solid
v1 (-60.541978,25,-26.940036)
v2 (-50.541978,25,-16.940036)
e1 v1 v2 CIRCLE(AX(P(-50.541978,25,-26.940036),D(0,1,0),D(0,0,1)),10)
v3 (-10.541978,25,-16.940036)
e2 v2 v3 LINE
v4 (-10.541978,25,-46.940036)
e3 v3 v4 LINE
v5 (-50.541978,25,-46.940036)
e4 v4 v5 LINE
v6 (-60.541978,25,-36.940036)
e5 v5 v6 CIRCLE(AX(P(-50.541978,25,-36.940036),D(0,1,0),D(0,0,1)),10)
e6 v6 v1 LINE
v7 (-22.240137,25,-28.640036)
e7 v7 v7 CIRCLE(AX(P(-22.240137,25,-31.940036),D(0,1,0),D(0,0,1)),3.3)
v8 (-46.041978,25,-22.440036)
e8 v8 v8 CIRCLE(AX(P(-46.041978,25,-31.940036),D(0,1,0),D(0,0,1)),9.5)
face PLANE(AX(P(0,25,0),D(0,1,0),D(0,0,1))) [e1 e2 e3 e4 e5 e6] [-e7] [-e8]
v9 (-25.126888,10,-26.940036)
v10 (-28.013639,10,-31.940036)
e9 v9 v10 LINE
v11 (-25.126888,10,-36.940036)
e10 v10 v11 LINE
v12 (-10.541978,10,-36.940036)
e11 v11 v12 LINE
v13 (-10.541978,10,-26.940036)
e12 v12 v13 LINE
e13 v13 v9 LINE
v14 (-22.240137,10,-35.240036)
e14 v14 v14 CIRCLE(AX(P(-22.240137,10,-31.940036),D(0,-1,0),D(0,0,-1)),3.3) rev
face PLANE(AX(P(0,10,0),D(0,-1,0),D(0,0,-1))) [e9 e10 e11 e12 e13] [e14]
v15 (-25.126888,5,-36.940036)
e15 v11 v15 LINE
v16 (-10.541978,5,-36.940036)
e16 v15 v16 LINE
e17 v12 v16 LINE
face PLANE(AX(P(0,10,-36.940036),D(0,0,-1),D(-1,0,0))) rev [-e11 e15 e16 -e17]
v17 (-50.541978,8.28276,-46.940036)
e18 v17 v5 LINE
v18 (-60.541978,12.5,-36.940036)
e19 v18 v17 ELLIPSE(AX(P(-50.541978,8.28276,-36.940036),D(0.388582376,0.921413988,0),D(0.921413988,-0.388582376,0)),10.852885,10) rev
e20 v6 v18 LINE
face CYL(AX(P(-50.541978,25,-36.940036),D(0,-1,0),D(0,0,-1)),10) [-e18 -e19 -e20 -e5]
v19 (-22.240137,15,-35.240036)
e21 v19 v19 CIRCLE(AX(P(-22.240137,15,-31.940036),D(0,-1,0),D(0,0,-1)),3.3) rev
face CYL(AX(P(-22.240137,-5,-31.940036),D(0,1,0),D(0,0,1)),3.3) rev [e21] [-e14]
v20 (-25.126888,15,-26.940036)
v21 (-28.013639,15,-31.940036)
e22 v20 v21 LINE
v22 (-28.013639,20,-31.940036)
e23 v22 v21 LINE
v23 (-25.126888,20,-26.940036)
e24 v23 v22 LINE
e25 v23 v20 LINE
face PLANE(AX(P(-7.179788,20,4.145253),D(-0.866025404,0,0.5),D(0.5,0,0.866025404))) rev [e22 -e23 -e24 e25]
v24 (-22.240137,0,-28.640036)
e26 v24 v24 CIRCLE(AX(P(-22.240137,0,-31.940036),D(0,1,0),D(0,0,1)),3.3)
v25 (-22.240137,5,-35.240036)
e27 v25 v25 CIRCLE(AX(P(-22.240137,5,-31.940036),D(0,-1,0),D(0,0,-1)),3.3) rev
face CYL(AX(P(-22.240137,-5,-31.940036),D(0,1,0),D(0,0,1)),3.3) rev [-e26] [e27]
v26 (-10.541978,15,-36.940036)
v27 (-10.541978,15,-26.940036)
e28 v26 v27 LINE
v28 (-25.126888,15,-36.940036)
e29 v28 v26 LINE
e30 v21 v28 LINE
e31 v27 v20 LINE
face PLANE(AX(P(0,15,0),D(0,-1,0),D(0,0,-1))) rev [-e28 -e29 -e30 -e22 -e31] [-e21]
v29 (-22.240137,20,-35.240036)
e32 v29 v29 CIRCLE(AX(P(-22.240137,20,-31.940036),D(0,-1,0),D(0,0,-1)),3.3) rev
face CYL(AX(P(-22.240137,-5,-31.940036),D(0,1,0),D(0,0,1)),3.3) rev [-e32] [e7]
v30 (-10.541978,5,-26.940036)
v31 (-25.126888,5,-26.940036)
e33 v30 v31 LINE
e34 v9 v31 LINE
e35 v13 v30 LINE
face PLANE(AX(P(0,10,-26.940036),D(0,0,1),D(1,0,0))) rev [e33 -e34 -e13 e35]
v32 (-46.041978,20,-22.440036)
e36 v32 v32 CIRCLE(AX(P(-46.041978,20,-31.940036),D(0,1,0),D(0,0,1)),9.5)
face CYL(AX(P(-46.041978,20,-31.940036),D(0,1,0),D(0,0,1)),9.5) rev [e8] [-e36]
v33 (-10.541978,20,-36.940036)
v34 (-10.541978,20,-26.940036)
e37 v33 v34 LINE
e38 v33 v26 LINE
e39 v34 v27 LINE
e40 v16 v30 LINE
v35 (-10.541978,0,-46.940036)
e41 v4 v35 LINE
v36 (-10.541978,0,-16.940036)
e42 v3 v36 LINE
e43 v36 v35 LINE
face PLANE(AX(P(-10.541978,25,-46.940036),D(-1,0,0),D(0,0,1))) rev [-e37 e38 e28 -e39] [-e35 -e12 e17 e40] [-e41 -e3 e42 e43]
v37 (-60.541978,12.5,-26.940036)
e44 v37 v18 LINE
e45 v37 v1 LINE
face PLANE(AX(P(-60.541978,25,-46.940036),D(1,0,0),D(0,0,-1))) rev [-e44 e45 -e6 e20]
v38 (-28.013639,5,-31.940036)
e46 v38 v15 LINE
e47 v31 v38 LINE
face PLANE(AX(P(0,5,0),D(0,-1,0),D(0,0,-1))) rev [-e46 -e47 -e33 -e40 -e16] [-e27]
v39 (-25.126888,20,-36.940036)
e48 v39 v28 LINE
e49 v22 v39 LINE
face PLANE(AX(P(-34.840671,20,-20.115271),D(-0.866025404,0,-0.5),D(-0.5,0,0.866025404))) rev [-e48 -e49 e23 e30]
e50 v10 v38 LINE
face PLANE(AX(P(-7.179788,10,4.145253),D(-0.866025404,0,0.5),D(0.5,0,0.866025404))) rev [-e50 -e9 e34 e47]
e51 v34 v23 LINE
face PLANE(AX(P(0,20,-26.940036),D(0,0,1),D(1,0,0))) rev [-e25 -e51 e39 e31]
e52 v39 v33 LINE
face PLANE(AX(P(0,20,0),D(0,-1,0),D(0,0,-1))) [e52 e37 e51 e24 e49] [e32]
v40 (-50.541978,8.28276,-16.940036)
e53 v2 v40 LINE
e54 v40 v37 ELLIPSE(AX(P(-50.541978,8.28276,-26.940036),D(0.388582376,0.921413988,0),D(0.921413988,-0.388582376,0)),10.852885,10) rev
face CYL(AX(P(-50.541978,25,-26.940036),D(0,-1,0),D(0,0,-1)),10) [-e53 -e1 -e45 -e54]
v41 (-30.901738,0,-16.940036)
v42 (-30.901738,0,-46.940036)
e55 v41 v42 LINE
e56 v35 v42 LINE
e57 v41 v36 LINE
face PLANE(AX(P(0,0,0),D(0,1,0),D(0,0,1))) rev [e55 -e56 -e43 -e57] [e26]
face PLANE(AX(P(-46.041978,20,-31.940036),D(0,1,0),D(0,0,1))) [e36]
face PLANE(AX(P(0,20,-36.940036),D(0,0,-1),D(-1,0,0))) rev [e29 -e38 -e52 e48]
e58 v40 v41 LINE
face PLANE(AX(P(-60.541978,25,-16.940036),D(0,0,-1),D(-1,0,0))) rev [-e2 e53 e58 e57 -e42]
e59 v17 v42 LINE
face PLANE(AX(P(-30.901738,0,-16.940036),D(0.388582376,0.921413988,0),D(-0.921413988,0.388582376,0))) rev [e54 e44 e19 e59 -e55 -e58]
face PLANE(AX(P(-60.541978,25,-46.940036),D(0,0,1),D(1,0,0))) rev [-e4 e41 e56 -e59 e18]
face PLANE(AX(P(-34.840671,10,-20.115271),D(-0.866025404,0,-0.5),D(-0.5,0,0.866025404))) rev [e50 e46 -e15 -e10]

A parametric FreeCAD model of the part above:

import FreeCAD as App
import Part
import Sketcher
Q = App.Units.Quantity


def edges_at(feature, points):
    """Names of the edges that pass closest to the given points."""
    edges = feature.Shape.Edges
    near = lambda p: min(range(len(edges)), key=lambda i: edges[i].distToShape(Part.Vertex(*p))[0])
    return sorted({f"Edge{near(p) + 1}" for p in points})

doc = App.newDocument("Part")
body = doc.addObject("PartDesign::Body", "Body")

sketch1 = body.newObject("Sketcher::SketchObject", "Sketch")
sketch1.AttachmentSupport = (doc.getObject("XZ_Plane"), [""])
sketch1.MapMode = "FlatFace"
sketch1.addGeometry(Part.LineSegment(App.Vector(-60.541978, -46.940036, 0), App.Vector(-60.541978, -16.940036, 0)), False)
sketch1.addGeometry(Part.LineSegment(App.Vector(-60.541978, -16.940036, 0), App.Vector(-10.541978, -16.940036, 0)), False)
sketch1.addGeometry(Part.LineSegment(App.Vector(-10.541978, -16.940036, 0), App.Vector(-10.541978, -46.940036, 0)), False)
sketch1.addGeometry(Part.LineSegment(App.Vector(-10.541978, -46.940036, 0), App.Vector(-60.541978, -46.940036, 0)), False)
sketch1.addConstraint(Sketcher.Constraint("Coincident", 0, 2, 1, 1))
sketch1.addConstraint(Sketcher.Constraint("Coincident", 1, 2, 2, 1))
sketch1.addConstraint(Sketcher.Constraint("Coincident", 2, 2, 3, 1))
sketch1.addConstraint(Sketcher.Constraint("Coincident", 3, 2, 0, 1))
sketch1.addConstraint(Sketcher.Constraint("Vertical", 0))
sketch1.addConstraint(Sketcher.Constraint("Horizontal", 1))
sketch1.addConstraint(Sketcher.Constraint("Vertical", 2))
sketch1.addConstraint(Sketcher.Constraint("Horizontal", 3))
sketch1.addConstraint(Sketcher.Constraint("DistanceX", 1, 1, 1, 2, Q("50 mm")))
sketch1.addConstraint(Sketcher.Constraint("DistanceY", 0, 1, 0, 2, Q("30 mm")))
sketch1.addConstraint(Sketcher.Constraint("DistanceX", 0, 2, -1, 1, Q("60.541978 mm")))
sketch1.addConstraint(Sketcher.Constraint("DistanceY", 0, 2, -1, 1, Q("16.940036 mm")))
pad1 = body.newObject("PartDesign::Pad", "Pad")
pad1.Profile = sketch1
pad1.Length = 25
pad1.Reversed = True

sketch2 = body.newObject("Sketcher::SketchObject", "Sketch001")
sketch2.AttachmentSupport = (doc.getObject("XZ_Plane"), [""])
sketch2.MapMode = "FlatFace"
sketch2.AttachmentOffset = App.Placement(App.Vector(0, 0, -25), App.Rotation())
sketch2.addGeometry(Part.Circle(App.Vector(-46.041978, -31.940036, 0), App.Vector(0, 0, 1), 9.5), False)
sketch2.addConstraint(Sketcher.Constraint("Diameter", 0, Q("19 mm")))
sketch2.addConstraint(Sketcher.Constraint("DistanceX", 0, 3, -1, 1, Q("46.041978 mm")))
sketch2.addConstraint(Sketcher.Constraint("DistanceY", 0, 3, -1, 1, Q("31.940036 mm")))
pocket1 = body.newObject("PartDesign::Pocket", "Pocket")
pocket1.Profile = sketch2
pocket1.Length = 5
pocket1.Reversed = True

sketch3 = body.newObject("Sketcher::SketchObject", "Sketch002")
sketch3.AttachmentSupport = (doc.getObject("XZ_Plane"), [""])
sketch3.MapMode = "FlatFace"
sketch3.AttachmentOffset = App.Placement(App.Vector(0, 0, -25), App.Rotation())
sketch3.addGeometry(Part.Circle(App.Vector(-22.240137, -31.940036, 0), App.Vector(0, 0, 1), 3.3), False)
sketch3.addConstraint(Sketcher.Constraint("Diameter", 0, Q("6.6 mm")))
sketch3.addConstraint(Sketcher.Constraint("DistanceX", 0, 3, -1, 1, Q("22.240137 mm")))
sketch3.addConstraint(Sketcher.Constraint("DistanceY", 0, 3, -1, 1, Q("31.940036 mm")))
pocket2 = body.newObject("PartDesign::Pocket", "Pocket001")
pocket2.Profile = sketch3
pocket2.Length = 30
pocket2.Reversed = True

sketch4 = body.newObject("Sketcher::SketchObject", "Sketch003")
sketch4.AttachmentSupport = (doc.getObject("XY_Plane"), [""])
sketch4.MapMode = "FlatFace"
sketch4.AttachmentOffset = App.Placement(App.Vector(0, 0, -46.940036), App.Rotation())
sketch4.addGeometry(Part.LineSegment(App.Vector(-60.541978, 12.5, 0), App.Vector(-30.901738, 0, 0)), False)
sketch4.addGeometry(Part.LineSegment(App.Vector(-30.901738, 0, 0), App.Vector(-60.541978, 0, 0)), False)
sketch4.addGeometry(Part.LineSegment(App.Vector(-60.541978, 0, 0), App.Vector(-60.541978, 12.5, 0)), False)
sketch4.addConstraint(Sketcher.Constraint("Coincident", 0, 2, 1, 1))
sketch4.addConstraint(Sketcher.Constraint("Coincident", 1, 2, 2, 1))
sketch4.addConstraint(Sketcher.Constraint("Coincident", 2, 2, 0, 1))
sketch4.addConstraint(Sketcher.Constraint("Horizontal", 1))
sketch4.addConstraint(Sketcher.Constraint("Vertical", 2))
sketch4.addConstraint(Sketcher.Constraint("PointOnObject", 0, 2, -1))
sketch4.addConstraint(Sketcher.Constraint("DistanceY", 2, 1, 2, 2, Q("12.5 mm")))
sketch4.addConstraint(Sketcher.Constraint("DistanceX", 1, 2, 1, 1, Q("29.64024 mm")))
sketch4.addConstraint(Sketcher.Constraint("DistanceX", 0, 2, -1, 1, Q("30.901738 mm")))
pocket3 = body.newObject("PartDesign::Pocket", "Pocket002")
pocket3.Profile = sketch4
pocket3.Length = 30
pocket3.Reversed = True
doc.recompute()

fillet = body.newObject("PartDesign::Fillet", "Fillet")
fillet.Base = (pocket3, edges_at(pocket3, [(-60.542, 18.75, -46.94), (-60.542, 18.75, -16.94)]))
fillet.Radius = 10

sketch5 = body.newObject("Sketcher::SketchObject", "Sketch004")
sketch5.AttachmentSupport = (doc.getObject("XZ_Plane"), [""])
sketch5.MapMode = "FlatFace"
sketch5.AttachmentOffset = App.Placement(App.Vector(0, 0, -5), App.Rotation())
sketch5.addGeometry(Part.LineSegment(App.Vector(-25.126888, -36.940036, 0), App.Vector(-10.541978, -36.940036, 0)), False)
sketch5.addGeometry(Part.LineSegment(App.Vector(-10.541978, -36.940036, 0), App.Vector(-10.541978, -26.940036, 0)), False)
sketch5.addGeometry(Part.LineSegment(App.Vector(-10.541978, -26.940036, 0), App.Vector(-25.126888, -26.940036, 0)), False)
sketch5.addGeometry(Part.LineSegment(App.Vector(-25.126888, -26.940036, 0), App.Vector(-28.013639, -31.940036, 0)), False)
sketch5.addGeometry(Part.LineSegment(App.Vector(-28.013639, -31.940036, 0), App.Vector(-25.126888, -36.940036, 0)), False)
sketch5.addGeometry(Part.Circle(App.Vector(-22.240137, -31.940036, 0), App.Vector(0, 0, 1), 3.3), False)
sketch5.addConstraint(Sketcher.Constraint("Coincident", 0, 2, 1, 1))
sketch5.addConstraint(Sketcher.Constraint("Coincident", 1, 2, 2, 1))
sketch5.addConstraint(Sketcher.Constraint("Coincident", 2, 2, 3, 1))
sketch5.addConstraint(Sketcher.Constraint("Coincident", 3, 2, 4, 1))
sketch5.addConstraint(Sketcher.Constraint("Coincident", 4, 2, 0, 1))
sketch5.addConstraint(Sketcher.Constraint("Horizontal", 0))
sketch5.addConstraint(Sketcher.Constraint("Vertical", 1))
sketch5.addConstraint(Sketcher.Constraint("Horizontal", 2))
sketch5.addConstraint(Sketcher.Constraint("Horizontal", 5, 3, 3, 2))
sketch5.addConstraint(Sketcher.Constraint("Vertical", 2, 2, 4, 2))
sketch5.addConstraint(Sketcher.Constraint("Equal", 3, 4))
sketch5.addConstraint(Sketcher.Constraint("Diameter", 5, Q("6.6 mm")))
sketch5.addConstraint(Sketcher.Constraint("DistanceY", 1, 1, 1, 2, Q("10 mm")))
sketch5.addConstraint(Sketcher.Constraint("Angle", 3, Q("-120 deg")))
sketch5.addConstraint(Sketcher.Constraint("DistanceX", 0, 1, 0, 2, Q("14.58491 mm")))
sketch5.addConstraint(Sketcher.Constraint("DistanceX", 0, 2, -1, 1, Q("10.541978 mm")))
sketch5.addConstraint(Sketcher.Constraint("DistanceX", 5, 3, 0, 2, Q("11.698158 mm")))
sketch5.addConstraint(Sketcher.Constraint("DistanceY", 5, 3, -1, 1, Q("31.940036 mm")))
pocket4 = body.newObject("PartDesign::Pocket", "Pocket003")
pocket4.Profile = sketch5
pocket4.Length = 5
doc.recompute()

linearpattern = body.newObject("PartDesign::LinearPattern", "LinearPattern")
linearpattern.Originals = [pocket4]
linearpattern.Direction = (doc.getObject("Y_Axis"), [""])
linearpattern.Mode = "offset"
linearpattern.Offset = 10
linearpattern.Occurrences = 2
body.Tip = linearpattern

doc.recompute()
